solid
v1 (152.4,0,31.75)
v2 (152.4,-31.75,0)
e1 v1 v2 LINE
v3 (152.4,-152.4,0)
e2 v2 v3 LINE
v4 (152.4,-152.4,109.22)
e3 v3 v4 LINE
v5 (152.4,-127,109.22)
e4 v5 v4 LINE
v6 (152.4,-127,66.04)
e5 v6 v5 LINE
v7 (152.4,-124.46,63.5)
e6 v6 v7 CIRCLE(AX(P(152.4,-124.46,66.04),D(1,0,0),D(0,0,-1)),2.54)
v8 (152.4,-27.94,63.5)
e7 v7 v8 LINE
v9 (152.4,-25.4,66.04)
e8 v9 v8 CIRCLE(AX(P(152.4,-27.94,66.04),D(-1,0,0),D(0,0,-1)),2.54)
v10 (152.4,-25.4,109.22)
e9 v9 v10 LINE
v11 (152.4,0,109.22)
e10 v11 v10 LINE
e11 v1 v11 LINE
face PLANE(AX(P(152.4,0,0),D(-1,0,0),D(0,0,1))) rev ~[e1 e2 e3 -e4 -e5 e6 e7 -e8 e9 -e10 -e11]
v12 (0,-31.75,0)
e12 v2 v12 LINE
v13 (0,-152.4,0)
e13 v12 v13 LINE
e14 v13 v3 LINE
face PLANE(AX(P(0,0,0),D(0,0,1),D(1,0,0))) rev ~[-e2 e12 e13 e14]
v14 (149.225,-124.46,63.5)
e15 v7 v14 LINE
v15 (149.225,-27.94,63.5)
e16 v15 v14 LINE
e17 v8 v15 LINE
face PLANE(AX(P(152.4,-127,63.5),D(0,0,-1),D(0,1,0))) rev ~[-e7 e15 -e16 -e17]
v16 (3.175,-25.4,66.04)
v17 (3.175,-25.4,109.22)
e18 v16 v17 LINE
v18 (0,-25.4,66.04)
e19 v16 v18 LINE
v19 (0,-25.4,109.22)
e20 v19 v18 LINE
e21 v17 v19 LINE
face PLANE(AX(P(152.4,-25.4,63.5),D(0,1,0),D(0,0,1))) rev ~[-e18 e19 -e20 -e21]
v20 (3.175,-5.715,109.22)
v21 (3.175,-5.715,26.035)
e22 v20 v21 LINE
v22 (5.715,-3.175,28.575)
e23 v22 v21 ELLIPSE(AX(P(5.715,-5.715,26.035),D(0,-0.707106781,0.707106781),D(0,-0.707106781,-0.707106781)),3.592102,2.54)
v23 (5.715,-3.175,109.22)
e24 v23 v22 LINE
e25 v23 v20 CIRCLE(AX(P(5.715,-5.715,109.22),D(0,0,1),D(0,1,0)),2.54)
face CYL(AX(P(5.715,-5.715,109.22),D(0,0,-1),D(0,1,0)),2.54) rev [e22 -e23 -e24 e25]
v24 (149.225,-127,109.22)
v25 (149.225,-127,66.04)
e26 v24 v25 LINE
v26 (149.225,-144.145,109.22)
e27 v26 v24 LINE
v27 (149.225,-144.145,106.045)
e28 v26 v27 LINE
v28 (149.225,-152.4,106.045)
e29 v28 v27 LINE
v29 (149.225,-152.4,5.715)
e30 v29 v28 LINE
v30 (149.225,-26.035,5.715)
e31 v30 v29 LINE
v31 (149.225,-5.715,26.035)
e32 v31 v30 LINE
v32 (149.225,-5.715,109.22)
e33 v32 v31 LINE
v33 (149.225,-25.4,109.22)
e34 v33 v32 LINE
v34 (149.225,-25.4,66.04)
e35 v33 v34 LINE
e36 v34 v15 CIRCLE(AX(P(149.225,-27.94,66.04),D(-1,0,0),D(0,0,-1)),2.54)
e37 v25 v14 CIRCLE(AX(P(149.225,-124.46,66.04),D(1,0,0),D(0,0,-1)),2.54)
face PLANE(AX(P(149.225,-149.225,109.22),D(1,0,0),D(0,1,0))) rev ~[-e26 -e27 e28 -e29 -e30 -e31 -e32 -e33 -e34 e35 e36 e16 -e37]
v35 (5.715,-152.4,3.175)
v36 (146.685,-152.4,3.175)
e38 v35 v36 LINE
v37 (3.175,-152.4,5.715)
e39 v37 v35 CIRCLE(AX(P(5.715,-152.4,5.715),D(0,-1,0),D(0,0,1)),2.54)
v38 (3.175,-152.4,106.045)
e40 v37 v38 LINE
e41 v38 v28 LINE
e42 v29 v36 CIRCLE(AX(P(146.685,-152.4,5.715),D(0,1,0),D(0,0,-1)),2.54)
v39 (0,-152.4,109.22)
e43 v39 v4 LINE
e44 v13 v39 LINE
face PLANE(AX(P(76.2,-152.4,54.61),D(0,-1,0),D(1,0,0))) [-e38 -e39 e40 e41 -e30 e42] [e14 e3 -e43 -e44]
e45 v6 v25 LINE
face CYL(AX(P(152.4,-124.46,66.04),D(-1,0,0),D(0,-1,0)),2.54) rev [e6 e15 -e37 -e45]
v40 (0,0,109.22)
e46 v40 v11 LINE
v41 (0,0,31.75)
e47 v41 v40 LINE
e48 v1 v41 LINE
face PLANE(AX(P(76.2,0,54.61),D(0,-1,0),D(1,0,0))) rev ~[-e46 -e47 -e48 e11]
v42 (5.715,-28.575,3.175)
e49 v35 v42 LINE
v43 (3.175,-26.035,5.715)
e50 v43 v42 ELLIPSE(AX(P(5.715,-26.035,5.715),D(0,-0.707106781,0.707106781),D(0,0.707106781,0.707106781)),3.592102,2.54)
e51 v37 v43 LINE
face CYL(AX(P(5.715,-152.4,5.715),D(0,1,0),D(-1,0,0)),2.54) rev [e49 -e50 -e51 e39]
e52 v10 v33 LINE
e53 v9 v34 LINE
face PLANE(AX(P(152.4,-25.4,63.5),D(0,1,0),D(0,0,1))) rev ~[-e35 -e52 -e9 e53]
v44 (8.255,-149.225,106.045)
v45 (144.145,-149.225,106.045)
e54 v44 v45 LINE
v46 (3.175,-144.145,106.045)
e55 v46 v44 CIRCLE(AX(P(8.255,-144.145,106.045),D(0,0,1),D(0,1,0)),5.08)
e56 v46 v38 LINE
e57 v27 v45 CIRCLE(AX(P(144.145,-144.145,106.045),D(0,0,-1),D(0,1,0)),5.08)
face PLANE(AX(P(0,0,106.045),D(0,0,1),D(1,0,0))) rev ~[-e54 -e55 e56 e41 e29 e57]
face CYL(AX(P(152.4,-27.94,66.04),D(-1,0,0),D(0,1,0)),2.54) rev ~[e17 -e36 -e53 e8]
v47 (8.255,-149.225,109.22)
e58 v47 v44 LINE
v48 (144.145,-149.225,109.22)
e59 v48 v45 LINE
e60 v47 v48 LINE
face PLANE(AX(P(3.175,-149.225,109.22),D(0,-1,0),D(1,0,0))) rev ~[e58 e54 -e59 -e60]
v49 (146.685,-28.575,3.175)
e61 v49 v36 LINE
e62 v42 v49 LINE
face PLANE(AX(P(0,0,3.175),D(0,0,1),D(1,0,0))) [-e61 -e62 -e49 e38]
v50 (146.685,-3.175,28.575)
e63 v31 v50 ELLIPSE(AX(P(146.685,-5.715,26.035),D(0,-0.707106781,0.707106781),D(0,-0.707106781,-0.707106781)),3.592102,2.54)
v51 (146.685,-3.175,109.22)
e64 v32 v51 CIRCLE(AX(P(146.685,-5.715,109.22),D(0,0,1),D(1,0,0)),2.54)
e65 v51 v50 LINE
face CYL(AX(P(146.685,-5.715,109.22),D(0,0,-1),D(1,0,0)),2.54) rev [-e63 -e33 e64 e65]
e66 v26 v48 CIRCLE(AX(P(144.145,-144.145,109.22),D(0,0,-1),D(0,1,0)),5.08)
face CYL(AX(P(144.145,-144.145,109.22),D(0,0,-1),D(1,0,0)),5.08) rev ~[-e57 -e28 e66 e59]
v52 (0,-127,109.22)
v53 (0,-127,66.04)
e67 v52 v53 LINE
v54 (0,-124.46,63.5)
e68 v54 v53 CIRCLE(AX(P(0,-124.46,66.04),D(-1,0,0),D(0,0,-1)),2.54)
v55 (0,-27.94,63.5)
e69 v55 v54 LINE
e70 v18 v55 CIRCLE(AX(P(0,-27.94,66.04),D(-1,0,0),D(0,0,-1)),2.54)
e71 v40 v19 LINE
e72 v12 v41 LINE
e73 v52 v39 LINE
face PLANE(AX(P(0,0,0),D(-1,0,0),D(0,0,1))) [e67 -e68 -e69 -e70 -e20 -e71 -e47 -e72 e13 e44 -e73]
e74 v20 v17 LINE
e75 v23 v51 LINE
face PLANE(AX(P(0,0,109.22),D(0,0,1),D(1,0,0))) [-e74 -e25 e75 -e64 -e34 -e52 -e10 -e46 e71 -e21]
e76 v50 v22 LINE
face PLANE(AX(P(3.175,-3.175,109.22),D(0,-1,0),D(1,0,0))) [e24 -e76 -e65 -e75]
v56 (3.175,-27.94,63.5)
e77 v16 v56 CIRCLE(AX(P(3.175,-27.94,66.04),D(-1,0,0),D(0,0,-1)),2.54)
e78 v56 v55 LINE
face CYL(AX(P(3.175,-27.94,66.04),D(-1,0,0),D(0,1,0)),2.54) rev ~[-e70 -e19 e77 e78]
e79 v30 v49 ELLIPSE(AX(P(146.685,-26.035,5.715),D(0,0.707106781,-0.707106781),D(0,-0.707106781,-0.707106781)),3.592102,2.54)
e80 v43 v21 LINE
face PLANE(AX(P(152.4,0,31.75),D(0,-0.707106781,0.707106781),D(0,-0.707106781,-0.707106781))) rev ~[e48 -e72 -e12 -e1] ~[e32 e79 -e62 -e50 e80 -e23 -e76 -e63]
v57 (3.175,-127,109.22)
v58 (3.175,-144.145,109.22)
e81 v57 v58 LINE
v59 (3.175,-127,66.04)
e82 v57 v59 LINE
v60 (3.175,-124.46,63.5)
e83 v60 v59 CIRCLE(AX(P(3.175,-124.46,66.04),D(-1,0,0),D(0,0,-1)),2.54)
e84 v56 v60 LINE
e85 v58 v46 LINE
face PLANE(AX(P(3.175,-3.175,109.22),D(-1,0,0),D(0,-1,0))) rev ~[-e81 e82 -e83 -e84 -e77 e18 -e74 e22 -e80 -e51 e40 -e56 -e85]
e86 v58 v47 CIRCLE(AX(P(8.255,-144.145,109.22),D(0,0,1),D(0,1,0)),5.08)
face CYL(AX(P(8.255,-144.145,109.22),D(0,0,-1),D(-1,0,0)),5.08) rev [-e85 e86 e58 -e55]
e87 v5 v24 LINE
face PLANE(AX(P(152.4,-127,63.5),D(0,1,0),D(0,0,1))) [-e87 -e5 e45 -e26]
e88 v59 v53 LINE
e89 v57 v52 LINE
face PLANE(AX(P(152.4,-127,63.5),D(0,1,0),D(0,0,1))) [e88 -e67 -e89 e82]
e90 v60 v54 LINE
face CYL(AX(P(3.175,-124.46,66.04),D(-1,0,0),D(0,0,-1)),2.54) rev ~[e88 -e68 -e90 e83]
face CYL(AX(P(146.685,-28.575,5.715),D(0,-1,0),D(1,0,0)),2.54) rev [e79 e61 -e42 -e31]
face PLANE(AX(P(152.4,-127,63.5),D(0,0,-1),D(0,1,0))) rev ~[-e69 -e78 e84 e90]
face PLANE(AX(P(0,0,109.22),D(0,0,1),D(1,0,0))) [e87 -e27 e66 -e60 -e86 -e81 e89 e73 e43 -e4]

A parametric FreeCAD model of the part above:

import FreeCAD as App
import Part
import Sketcher
Q = App.Units.Quantity


def edges_at(feature, points):
    """Names of the edges that pass closest to the given points."""
    edges = feature.Shape.Edges
    near = lambda p: min(range(len(edges)), key=lambda i: edges[i].distToShape(Part.Vertex(*p))[0])
    return sorted({f"Edge{near(p) + 1}" for p in points})


def faces_at(feature, points):
    """Names of the faces that lie closest to the given points."""
    faces = feature.Shape.Faces
    near = lambda p: min(range(len(faces)), key=lambda i: faces[i].distToShape(Part.Vertex(*p))[0])
    return sorted({f"Face{near(p) + 1}" for p in points})

doc = App.newDocument("Part")
params = doc.addObject("Spreadsheet::Sheet", "Params")
for row, (alias, value) in enumerate([
    ("sketch1_width", "6 in"),
    ("sketch1_height", "4.3 in"),
    ("pad1_length", "6 in"),
    ("thickness_wall", "0.125 in"),
    ("sketch2_width", "4 in"),
    ("sketch2_height", "1.8 in"),
    ("sketch3_width", "5.75 in"),
    ("pocket2_length", "1 in"),
    ("sketch4_width", "1.25 in"),
    ("fillet_radius", "0.1 in"),
    ("fillet2_radius", "0.2 in"),
], start=1):
    params.set(f"A{row}", alias)
    params.set(f"B{row}", "=" + value)
    params.setAlias(f"B{row}", alias)

body = doc.addObject("PartDesign::Body", "Body")

sketch1 = body.newObject("Sketcher::SketchObject", "Sketch")
sketch1.AttachmentSupport = (doc.getObject("XZ_Plane"), [""])
sketch1.MapMode = "FlatFace"
sketch1.addGeometry(Part.LineSegment(App.Vector(0, 109, 0), App.Vector(0, 0, 0)), False)
sketch1.addGeometry(Part.LineSegment(App.Vector(0, 0, 0), App.Vector(152, 0, 0)), False)
sketch1.addGeometry(Part.LineSegment(App.Vector(152, 0, 0), App.Vector(152, 109, 0)), False)
sketch1.addGeometry(Part.LineSegment(App.Vector(152, 109, 0), App.Vector(0, 109, 0)), False)
sketch1.addConstraint(Sketcher.Constraint("Coincident", 0, 2, 1, 1))
sketch1.addConstraint(Sketcher.Constraint("Coincident", 1, 2, 2, 1))
sketch1.addConstraint(Sketcher.Constraint("Coincident", 2, 2, 3, 1))
sketch1.addConstraint(Sketcher.Constraint("Coincident", 3, 2, 0, 1))
sketch1.addConstraint(Sketcher.Constraint("Vertical", 0))
sketch1.addConstraint(Sketcher.Constraint("Horizontal", 1))
sketch1.addConstraint(Sketcher.Constraint("Vertical", 2))
sketch1.addConstraint(Sketcher.Constraint("Horizontal", 3))
sketch1.addConstraint(Sketcher.Constraint("Coincident", 0, 2, -1, 1))
sketch1.addConstraint(Sketcher.Constraint("DistanceX", 1, 1, 1, 2, Q("6 in")))
sketch1.addConstraint(Sketcher.Constraint("DistanceY", 0, 2, 0, 1, Q("4.3 in")))
sketch1.setExpression("Constraints[9]", "Params.sketch1_width")
sketch1.setExpression("Constraints[10]", "Params.sketch1_height")
pad1 = body.newObject("PartDesign::Pad", "Pad")
pad1.Profile = sketch1
pad1.setExpression("Length", "Params.pad1_length")
doc.recompute()

thickness = body.newObject("PartDesign::Thickness", "Thickness")
thickness.Base = (pad1, faces_at(pad1, [(76.2, -152.4, 54.61)]))
thickness.setExpression("Value", "Params.thickness_wall")
thickness.Reversed = True
thickness.Join = "Arc"

sketch2 = body.newObject("Sketcher::SketchObject", "Sketch001")
sketch2.AttachmentSupport = (doc.getObject("YZ_Plane"), [""])
sketch2.MapMode = "FlatFace"
sketch2.AttachmentOffset = App.Placement(App.Vector(0, 0, 6 * 25.4), App.Rotation())
sketch2.addGeometry(Part.LineSegment(App.Vector(-127, 109, 0), App.Vector(-127, 64, 0)), False)
sketch2.addGeometry(Part.LineSegment(App.Vector(-127, 64, 0), App.Vector(-25, 64, 0)), False)
sketch2.addGeometry(Part.LineSegment(App.Vector(-25, 64, 0), App.Vector(-25, 109, 0)), False)
sketch2.addGeometry(Part.LineSegment(App.Vector(-25, 109, 0), App.Vector(-127, 109, 0)), False)
sketch2.addConstraint(Sketcher.Constraint("Coincident", 0, 2, 1, 1))
sketch2.addConstraint(Sketcher.Constraint("Coincident", 1, 2, 2, 1))
sketch2.addConstraint(Sketcher.Constraint("Coincident", 2, 2, 3, 1))
sketch2.addConstraint(Sketcher.Constraint("Coincident", 3, 2, 0, 1))
sketch2.addConstraint(Sketcher.Constraint("Vertical", 0))
sketch2.addConstraint(Sketcher.Constraint("Horizontal", 1))
sketch2.addConstraint(Sketcher.Constraint("Vertical", 2))
sketch2.addConstraint(Sketcher.Constraint("Horizontal", 3))
sketch2.addConstraint(Sketcher.Constraint("DistanceX", 1, 1, 1, 2, Q("4 in")))
sketch2.addConstraint(Sketcher.Constraint("DistanceY", 0, 2, 0, 1, Q("1.8 in")))
sketch2.addConstraint(Sketcher.Constraint("DistanceX", 0, 2, -1, 1, Q("5 in")))
sketch2.addConstraint(Sketcher.Constraint("DistanceY", -1, 1, 0, 2, Q("2.5 in")))
sketch2.setExpression("Constraints[8]", "Params.sketch2_width")
sketch2.setExpression("Constraints[9]", "Params.sketch2_height")
pocket1 = body.newObject("PartDesign::Pocket", "Pocket")
pocket1.Profile = sketch2
pocket1.Type = "ThroughAll"

sketch3 = body.newObject("Sketcher::SketchObject", "Sketch002")
sketch3.AttachmentSupport = (doc.getObject("XY_Plane"), [""])
sketch3.MapMode = "FlatFace"
sketch3.AttachmentOffset = App.Placement(App.Vector(0, 0, 4.3 * 25.4), App.Rotation())
sketch3.addGeometry(Part.LineSegment(App.Vector(3, -149, 0), App.Vector(149, -149, 0)), False)
sketch3.addGeometry(Part.LineSegment(App.Vector(149, -149, 0), App.Vector(149, -3, 0)), False)
sketch3.addGeometry(Part.LineSegment(App.Vector(149, -3, 0), App.Vector(3, -3, 0)), False)
sketch3.addGeometry(Part.LineSegment(App.Vector(3, -3, 0), App.Vector(3, -149, 0)), False)
sketch3.addConstraint(Sketcher.Constraint("Coincident", 0, 2, 1, 1))
sketch3.addConstraint(Sketcher.Constraint("Coincident", 1, 2, 2, 1))
sketch3.addConstraint(Sketcher.Constraint("Coincident", 2, 2, 3, 1))
sketch3.addConstraint(Sketcher.Constraint("Coincident", 3, 2, 0, 1))
sketch3.addConstraint(Sketcher.Constraint("Horizontal", 0))
sketch3.addConstraint(Sketcher.Constraint("Vertical", 1))
sketch3.addConstraint(Sketcher.Constraint("Horizontal", 2))
sketch3.addConstraint(Sketcher.Constraint("Vertical", 3))
sketch3.addConstraint(Sketcher.Constraint("Equal", 2, 1))
sketch3.addConstraint(Sketcher.Constraint("DistanceX", 0, 1, 0, 2, Q("5.75 in")))
sketch3.addConstraint(Sketcher.Constraint("DistanceX", -1, 1, 0, 2, Q("5.875 in")))
sketch3.addConstraint(Sketcher.Constraint("DistanceY", 0, 2, -1, 1, Q("5.875 in")))
sketch3.setExpression("Constraints[9]", "Params.sketch3_width")
pocket2 = body.newObject("PartDesign::Pocket", "Pocket001")
pocket2.Profile = sketch3
pocket2.setExpression("Length", "Params.pocket2_length")

sketch4 = body.newObject("Sketcher::SketchObject", "Sketch003")
sketch4.AttachmentSupport = (doc.getObject("YZ_Plane"), [""])
sketch4.MapMode = "FlatFace"
sketch4.AttachmentOffset = App.Placement(App.Vector(0, 0, 6 * 25.4), App.Rotation())
sketch4.addGeometry(Part.LineSegment(App.Vector(-32, 0, 0), App.Vector(0, 0, 0)), False)
sketch4.addGeometry(Part.LineSegment(App.Vector(0, 0, 0), App.Vector(0, 32, 0)), False)
sketch4.addGeometry(Part.LineSegment(App.Vector(0, 32, 0), App.Vector(-32, 0, 0)), False)
sketch4.addConstraint(Sketcher.Constraint("Coincident", 0, 2, 1, 1))
sketch4.addConstraint(Sketcher.Constraint("Coincident", 1, 2, 2, 1))
sketch4.addConstraint(Sketcher.Constraint("Coincident", 2, 2, 0, 1))
sketch4.addConstraint(Sketcher.Constraint("Horizontal", 0))
sketch4.addConstraint(Sketcher.Constraint("Vertical", 1))
sketch4.addConstraint(Sketcher.Constraint("Coincident", 0, 2, -1, 1))
sketch4.addConstraint(Sketcher.Constraint("Equal", 0, 1))
sketch4.addConstraint(Sketcher.Constraint("DistanceX", 0, 1, 0, 2, Q("1.25 in")))
sketch4.setExpression("Constraints[7]", "Params.sketch4_width")
pocket3 = body.newObject("PartDesign::Pocket", "Pocket002")
pocket3.Profile = sketch4
pocket3.Type = "ThroughAll"
doc.recompute()

fillet = body.newObject("PartDesign::Fillet", "Fillet")
fillet.Base = (pocket3, edges_at(pocket3, [
    (3.175, -90.487, 3.175),
    (3.175, -3.175, 68.897),
    (149.225, -3.175, 68.897),
    (1.587, -25.4, 63.5),
    (150.812, -25.4, 63.5),
    (150.812, -127, 63.5),
    (1.587, -127, 63.5),
    (149.225, -90.487, 3.175),
]))
fillet.setExpression("Radius", "Params.fillet_radius")
doc.recompute()

fillet2 = body.newObject("PartDesign::Fillet", "Fillet001")
fillet2.Base = (fillet, edges_at(fillet, [(3.175, -149.225, 107.632), (149.225, -149.225, 107.632)]))
fillet2.setExpression("Radius", "Params.fillet2_radius")

doc.recompute()
